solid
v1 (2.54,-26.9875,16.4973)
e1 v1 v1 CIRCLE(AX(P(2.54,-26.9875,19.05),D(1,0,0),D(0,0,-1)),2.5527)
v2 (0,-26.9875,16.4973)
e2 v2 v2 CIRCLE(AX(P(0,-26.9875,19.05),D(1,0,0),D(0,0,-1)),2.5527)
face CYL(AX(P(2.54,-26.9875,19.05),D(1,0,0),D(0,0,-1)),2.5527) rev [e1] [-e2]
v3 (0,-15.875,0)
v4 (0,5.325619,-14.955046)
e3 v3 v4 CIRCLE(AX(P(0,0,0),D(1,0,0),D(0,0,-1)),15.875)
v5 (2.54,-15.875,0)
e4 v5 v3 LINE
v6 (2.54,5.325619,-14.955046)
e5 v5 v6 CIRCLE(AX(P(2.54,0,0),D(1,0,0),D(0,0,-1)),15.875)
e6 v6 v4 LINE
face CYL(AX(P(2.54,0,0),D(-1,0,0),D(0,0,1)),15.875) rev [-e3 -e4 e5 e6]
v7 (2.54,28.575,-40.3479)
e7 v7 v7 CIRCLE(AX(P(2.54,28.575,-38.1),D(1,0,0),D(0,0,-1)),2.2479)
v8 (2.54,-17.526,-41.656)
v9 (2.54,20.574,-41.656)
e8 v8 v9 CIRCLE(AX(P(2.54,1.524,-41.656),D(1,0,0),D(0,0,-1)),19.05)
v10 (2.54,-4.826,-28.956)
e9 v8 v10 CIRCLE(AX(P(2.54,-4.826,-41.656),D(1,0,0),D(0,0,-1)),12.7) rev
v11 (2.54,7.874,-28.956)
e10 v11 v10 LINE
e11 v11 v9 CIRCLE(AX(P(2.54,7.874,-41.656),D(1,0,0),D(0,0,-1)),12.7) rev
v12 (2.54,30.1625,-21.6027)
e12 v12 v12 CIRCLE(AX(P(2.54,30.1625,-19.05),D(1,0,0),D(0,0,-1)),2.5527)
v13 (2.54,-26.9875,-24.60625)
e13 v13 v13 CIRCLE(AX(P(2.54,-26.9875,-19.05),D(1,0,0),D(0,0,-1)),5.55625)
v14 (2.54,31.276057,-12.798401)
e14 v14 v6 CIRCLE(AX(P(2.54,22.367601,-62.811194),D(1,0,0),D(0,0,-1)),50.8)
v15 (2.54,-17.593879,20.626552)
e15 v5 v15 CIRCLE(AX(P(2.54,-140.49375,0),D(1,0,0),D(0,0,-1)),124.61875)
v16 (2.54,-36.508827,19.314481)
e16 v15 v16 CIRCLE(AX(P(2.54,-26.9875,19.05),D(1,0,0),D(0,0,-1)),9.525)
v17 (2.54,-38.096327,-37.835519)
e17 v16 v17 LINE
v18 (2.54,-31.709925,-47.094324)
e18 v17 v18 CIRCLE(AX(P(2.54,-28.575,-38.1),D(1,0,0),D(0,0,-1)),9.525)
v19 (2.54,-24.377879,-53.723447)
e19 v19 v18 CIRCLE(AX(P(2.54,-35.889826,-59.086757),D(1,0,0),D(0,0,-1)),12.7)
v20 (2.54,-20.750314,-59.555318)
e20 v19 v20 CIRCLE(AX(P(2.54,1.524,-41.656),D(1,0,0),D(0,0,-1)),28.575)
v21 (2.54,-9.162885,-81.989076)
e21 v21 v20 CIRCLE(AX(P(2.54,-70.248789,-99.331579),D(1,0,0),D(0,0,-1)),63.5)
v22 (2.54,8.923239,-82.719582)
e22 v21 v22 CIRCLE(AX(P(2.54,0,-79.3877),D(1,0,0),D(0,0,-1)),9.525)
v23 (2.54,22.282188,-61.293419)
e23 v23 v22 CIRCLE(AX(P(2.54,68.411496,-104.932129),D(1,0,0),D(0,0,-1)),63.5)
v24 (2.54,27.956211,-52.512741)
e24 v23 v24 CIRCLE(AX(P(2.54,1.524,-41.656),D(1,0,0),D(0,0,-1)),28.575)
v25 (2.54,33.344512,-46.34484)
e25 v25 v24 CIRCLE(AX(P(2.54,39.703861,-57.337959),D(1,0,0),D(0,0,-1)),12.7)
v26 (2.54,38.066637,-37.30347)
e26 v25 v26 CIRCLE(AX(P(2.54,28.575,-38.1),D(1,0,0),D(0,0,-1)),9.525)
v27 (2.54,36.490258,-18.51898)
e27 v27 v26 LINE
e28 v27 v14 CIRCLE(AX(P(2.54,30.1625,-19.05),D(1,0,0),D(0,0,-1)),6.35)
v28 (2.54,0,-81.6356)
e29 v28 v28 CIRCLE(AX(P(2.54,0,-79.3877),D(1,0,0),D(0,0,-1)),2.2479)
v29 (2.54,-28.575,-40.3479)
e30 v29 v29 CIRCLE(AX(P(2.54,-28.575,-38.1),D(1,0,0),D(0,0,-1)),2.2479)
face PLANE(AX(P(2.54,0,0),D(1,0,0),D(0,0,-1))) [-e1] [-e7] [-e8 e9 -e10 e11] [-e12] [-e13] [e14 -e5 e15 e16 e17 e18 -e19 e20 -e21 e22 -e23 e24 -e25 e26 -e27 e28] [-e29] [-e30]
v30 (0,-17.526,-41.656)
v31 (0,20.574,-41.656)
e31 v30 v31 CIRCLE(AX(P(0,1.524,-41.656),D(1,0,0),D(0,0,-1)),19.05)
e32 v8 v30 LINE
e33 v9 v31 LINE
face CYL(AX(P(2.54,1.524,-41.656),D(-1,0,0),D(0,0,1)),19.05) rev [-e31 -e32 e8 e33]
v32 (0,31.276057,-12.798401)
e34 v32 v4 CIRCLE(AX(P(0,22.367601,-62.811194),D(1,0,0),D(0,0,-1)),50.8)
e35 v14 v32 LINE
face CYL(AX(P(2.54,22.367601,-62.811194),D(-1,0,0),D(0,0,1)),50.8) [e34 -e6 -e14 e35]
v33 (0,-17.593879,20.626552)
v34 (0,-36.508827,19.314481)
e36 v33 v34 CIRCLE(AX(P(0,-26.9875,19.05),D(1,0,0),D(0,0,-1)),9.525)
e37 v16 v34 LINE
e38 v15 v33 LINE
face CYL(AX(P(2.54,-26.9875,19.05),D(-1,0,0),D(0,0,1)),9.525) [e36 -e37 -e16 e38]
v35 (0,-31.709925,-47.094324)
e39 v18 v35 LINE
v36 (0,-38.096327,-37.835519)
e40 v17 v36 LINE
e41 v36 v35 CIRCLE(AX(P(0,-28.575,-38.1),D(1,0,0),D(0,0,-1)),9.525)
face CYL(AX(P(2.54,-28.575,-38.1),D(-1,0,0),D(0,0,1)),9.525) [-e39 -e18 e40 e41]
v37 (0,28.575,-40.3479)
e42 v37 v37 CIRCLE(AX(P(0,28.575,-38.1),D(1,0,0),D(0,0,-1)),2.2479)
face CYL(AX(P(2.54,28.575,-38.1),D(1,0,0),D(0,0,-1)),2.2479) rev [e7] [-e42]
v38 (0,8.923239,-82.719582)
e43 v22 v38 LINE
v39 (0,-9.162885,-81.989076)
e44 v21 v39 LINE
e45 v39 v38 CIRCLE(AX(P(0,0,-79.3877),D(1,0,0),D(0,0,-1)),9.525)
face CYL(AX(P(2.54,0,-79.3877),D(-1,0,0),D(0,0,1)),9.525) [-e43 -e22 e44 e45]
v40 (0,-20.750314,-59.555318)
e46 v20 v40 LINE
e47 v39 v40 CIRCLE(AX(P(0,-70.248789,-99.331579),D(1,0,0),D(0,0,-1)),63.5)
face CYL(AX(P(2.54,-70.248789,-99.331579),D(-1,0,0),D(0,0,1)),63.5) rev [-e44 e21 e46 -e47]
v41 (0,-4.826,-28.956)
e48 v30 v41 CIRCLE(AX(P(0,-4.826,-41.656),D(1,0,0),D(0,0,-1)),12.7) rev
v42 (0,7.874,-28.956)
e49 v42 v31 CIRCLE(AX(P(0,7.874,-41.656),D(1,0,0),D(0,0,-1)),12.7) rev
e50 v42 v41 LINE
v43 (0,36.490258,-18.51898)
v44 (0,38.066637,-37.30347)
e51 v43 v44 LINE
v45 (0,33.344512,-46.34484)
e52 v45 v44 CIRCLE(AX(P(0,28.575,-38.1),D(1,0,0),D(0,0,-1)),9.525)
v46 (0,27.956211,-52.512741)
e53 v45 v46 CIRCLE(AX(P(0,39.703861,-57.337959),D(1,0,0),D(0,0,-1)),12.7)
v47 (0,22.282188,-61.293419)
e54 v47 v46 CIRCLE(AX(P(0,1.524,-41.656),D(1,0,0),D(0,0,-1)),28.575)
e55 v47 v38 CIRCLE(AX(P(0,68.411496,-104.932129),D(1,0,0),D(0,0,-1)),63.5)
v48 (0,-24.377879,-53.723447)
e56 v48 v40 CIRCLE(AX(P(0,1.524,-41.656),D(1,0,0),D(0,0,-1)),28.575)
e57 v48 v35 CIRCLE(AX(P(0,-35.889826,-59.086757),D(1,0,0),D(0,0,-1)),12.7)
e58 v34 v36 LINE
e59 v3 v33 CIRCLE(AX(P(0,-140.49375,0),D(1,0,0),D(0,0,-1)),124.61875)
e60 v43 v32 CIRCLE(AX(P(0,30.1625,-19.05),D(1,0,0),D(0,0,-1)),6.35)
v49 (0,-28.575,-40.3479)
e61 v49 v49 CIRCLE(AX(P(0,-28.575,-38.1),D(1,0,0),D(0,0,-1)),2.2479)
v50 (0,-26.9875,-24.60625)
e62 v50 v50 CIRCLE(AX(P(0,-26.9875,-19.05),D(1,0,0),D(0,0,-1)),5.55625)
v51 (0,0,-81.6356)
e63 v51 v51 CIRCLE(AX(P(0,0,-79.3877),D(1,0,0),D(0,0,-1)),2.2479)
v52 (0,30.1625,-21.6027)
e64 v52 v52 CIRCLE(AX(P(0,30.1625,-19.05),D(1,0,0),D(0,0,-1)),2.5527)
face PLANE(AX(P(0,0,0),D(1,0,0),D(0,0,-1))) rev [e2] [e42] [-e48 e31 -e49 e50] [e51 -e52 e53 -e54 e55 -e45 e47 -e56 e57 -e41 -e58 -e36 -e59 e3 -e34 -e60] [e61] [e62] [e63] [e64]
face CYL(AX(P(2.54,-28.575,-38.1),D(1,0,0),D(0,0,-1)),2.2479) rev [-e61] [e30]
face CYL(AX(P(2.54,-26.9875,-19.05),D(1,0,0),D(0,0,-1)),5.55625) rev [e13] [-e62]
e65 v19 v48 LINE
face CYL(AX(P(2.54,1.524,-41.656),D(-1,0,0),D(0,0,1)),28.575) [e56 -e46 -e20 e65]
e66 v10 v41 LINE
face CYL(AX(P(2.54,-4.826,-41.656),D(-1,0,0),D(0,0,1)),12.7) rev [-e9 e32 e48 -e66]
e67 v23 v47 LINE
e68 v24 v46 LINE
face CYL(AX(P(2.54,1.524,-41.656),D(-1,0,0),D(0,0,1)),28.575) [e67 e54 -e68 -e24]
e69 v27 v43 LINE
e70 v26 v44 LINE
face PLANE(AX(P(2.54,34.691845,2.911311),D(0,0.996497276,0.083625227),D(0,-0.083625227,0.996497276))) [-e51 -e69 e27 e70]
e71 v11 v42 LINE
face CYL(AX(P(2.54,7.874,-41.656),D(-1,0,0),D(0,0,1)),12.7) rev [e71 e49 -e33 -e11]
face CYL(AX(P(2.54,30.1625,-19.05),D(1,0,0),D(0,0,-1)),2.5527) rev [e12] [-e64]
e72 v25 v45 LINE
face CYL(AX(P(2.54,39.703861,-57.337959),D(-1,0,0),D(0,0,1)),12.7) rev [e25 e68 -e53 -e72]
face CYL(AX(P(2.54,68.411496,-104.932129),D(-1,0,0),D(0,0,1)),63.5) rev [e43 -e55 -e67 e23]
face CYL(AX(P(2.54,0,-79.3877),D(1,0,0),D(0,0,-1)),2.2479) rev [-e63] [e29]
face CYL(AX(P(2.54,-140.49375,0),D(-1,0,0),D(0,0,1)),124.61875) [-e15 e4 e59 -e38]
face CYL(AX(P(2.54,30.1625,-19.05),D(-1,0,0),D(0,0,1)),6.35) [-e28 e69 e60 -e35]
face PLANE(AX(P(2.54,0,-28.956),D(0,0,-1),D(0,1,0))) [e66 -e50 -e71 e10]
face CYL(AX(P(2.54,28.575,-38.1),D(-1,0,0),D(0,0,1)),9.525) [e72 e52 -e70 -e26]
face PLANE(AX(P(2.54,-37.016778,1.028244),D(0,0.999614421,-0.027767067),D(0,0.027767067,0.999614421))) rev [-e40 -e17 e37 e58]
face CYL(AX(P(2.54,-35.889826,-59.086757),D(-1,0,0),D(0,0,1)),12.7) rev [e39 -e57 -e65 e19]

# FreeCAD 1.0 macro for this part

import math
import FreeCAD as App
import Part
import Sketcher
Q = App.Units.Quantity

doc = App.newDocument("Part")
body = doc.addObject("PartDesign::Body", "Body")

# Sketch on YZ plane
sketch1 = doc.addObject("Sketcher::SketchObject", "Sketch")
body.addObject(sketch1)
sketch1.AttachmentSupport = (doc.YZ_Plane, [""])
sketch1.MapMode = "FlatFace"
sketch1.addGeometry(Part.LineSegment(App.Vector(-37, 19, 0), App.Vector(-38, -38, 0)), False)
sketch1.addGeometry(Part.ArcOfCircle(Part.Circle(App.Vector(-29, -38, 0), App.Vector(0, 0, 1), 10), math.radians(178), math.radians(251)), False)
sketch1.addGeometry(Part.ArcOfCircle(Part.Circle(App.Vector(-36, -59, 0), App.Vector(0, 0, 1), 13), math.radians(25), math.radians(71)), False)
sketch1.addGeometry(Part.ArcOfCircle(Part.Circle(App.Vector(2, -42, 0), App.Vector(0, 0, 1), 29), math.radians(-155.02), math.radians(-141.22)), False)
sketch1.addGeometry(Part.ArcOfCircle(Part.Circle(App.Vector(-70, -99, 0), App.Vector(0, 0, 1), 63), math.radians(16), math.radians(39)), False)
sketch1.addGeometry(Part.ArcOfCircle(Part.Circle(App.Vector(0, -79, 0), App.Vector(0, 0, 1), 10), math.radians(-164), math.radians(-20)), False)
sketch1.addGeometry(Part.ArcOfCircle(Part.Circle(App.Vector(68, -105, 0), App.Vector(0, 0, 1), 63), math.radians(137), math.radians(160)), False)
sketch1.addGeometry(Part.ArcOfCircle(Part.Circle(App.Vector(2, -42, 0), App.Vector(0, 0, 1), 29), math.radians(-43), math.radians(-22)), False)
sketch1.addGeometry(Part.ArcOfCircle(Part.Circle(App.Vector(40, -57, 0), App.Vector(0, 0, 1), 13), math.radians(120), math.radians(158)), False)
sketch1.addGeometry(Part.ArcOfCircle(Part.Circle(App.Vector(29, -38, 0), App.Vector(0, 0, 1), 10), math.radians(-60), math.radians(5)), False)
sketch1.addGeometry(Part.LineSegment(App.Vector(38, -37, 0), App.Vector(36, -19, 0)), False)
sketch1.addGeometry(Part.ArcOfCircle(Part.Circle(App.Vector(30, -19, 0), App.Vector(0, 0, 1), 6), math.radians(5), math.radians(80)), False)
sketch1.addGeometry(Part.ArcOfCircle(Part.Circle(App.Vector(22, -63, 0), App.Vector(0, 0, 1), 51), math.radians(80), math.radians(110)), False)
sketch1.addGeometry(Part.ArcOfCircle(Part.Circle(App.Vector(0, 0, 0), App.Vector(0, 0, 1), 16), math.radians(180), math.radians(290)), False)
sketch1.addGeometry(Part.ArcOfCircle(Part.Circle(App.Vector(-140, 0, 0), App.Vector(0, 0, 1), 125), math.radians(0), math.radians(9.53)), False)
sketch1.addGeometry(Part.ArcOfCircle(Part.Circle(App.Vector(-27, 19, 0), App.Vector(0, 0, 1), 10), math.radians(10), math.radians(178)), False)
sketch1.addGeometry(Part.LineSegment(App.Vector(-5, -29, 0), App.Vector(8, -29, 0)), False)
sketch1.addGeometry(Part.ArcOfCircle(Part.Circle(App.Vector(8, -42, 0), App.Vector(0, 0, 1), 13), math.radians(0), math.radians(90)), False)
sketch1.addGeometry(Part.ArcOfCircle(Part.Circle(App.Vector(2, -42, 0), App.Vector(0, 0, 1), 19), math.radians(180), math.radians(360)), False)
sketch1.addGeometry(Part.ArcOfCircle(Part.Circle(App.Vector(-5, -42, 0), App.Vector(0, 0, 1), 13), math.radians(90), math.radians(180)), False)
sketch1.addConstraint(Sketcher.Constraint("Tangent", 0, 2, 1, 1))
sketch1.addConstraint(Sketcher.Constraint("Tangent", 1, 2, 2, 2))
sketch1.addConstraint(Sketcher.Constraint("Tangent", 2, 1, 3, 1))
sketch1.addConstraint(Sketcher.Constraint("Tangent", 3, 2, 4, 2))
sketch1.addConstraint(Sketcher.Constraint("Tangent", 4, 1, 5, 1))
sketch1.addConstraint(Sketcher.Constraint("Tangent", 5, 2, 6, 2))
sketch1.addConstraint(Sketcher.Constraint("Tangent", 6, 1, 7, 1))
sketch1.addConstraint(Sketcher.Constraint("Tangent", 7, 2, 8, 2))
sketch1.addConstraint(Sketcher.Constraint("Tangent", 8, 1, 9, 1))
sketch1.addConstraint(Sketcher.Constraint("Tangent", 9, 2, 10, 1))
sketch1.addConstraint(Sketcher.Constraint("Tangent", 10, 2, 11, 1))
sketch1.addConstraint(Sketcher.Constraint("Tangent", 11, 2, 12, 1))
sketch1.addConstraint(Sketcher.Constraint("Tangent", 12, 2, 13, 2))
sketch1.addConstraint(Sketcher.Constraint("Tangent", 13, 1, 14, 1))
sketch1.addConstraint(Sketcher.Constraint("Tangent", 14, 2, 15, 1))
sketch1.addConstraint(Sketcher.Constraint("Tangent", 15, 2, 0, 1))
sketch1.addConstraint(Sketcher.Constraint("Tangent", 16, 2, 17, 2))
sketch1.addConstraint(Sketcher.Constraint("Tangent", 17, 1, 18, 2))
sketch1.addConstraint(Sketcher.Constraint("Tangent", 18, 1, 19, 2))
sketch1.addConstraint(Sketcher.Constraint("Tangent", 19, 1, 16, 1))
sketch1.addConstraint(Sketcher.Constraint("Horizontal", 16))
sketch1.addConstraint(Sketcher.Constraint("Coincident", 13, 3, -1, 1))
sketch1.addConstraint(Sketcher.Constraint("Coincident", 7, 3, 3, 3))
sketch1.addConstraint(Sketcher.Constraint("Coincident", 18, 3, 3, 3))
sketch1.addConstraint(Sketcher.Constraint("Equal", 1, 5))
sketch1.addConstraint(Sketcher.Constraint("Equal", 4, 6))
sketch1.addConstraint(Sketcher.Constraint("Equal", 3, 7))
sketch1.addConstraint(Sketcher.Constraint("Equal", 2, 8))
sketch1.addConstraint(Sketcher.Constraint("Equal", 5, 9))
sketch1.addConstraint(Sketcher.Constraint("Equal", 9, 15))
sketch1.addConstraint(Sketcher.Constraint("Equal", 8, 17))
sketch1.addConstraint(Sketcher.Constraint("Equal", 17, 19))
sketch1.addConstraint(Sketcher.Constraint("Symmetric", 1, 3, 9, 3, -2))
sketch1.addConstraint(Sketcher.Constraint("PointOnObject", 5, 3, -2))
sketch1.addConstraint(Sketcher.Constraint("PointOnObject", 14, 3, -1))
sketch1.addConstraint(Sketcher.Constraint("Horizontal", 7, 3, 17, 3))
sketch1.addConstraint(Sketcher.Constraint("Radius", 12, Q("2 in")))
sketch1.addConstraint(Sketcher.Constraint("Radius", 2, Q("0.5 in")))
sketch1.addConstraint(Sketcher.Constraint("Radius", 4, Q("2.5 in")))
sketch1.addConstraint(Sketcher.Constraint("Radius", 11, Q("0.25 in")))
sketch1.addConstraint(Sketcher.Constraint("Radius", 18, Q("0.75 in")))
sketch1.addConstraint(Sketcher.Constraint("Radius", 1, Q("0.375 in")))
sketch1.addConstraint(Sketcher.Constraint("Radius", 3, Q("1.125 in")))
sketch1.addConstraint(Sketcher.Constraint("Radius", 13, Q("0.625 in")))
sketch1.addConstraint(Sketcher.Constraint("Radius", 14, Q("4.90625 in")))
sketch1.addConstraint(Sketcher.Constraint("DistanceY", 1, 3, -1, 1, Q("1.5 in")))
sketch1.addConstraint(Sketcher.Constraint("DistanceY", 11, 3, 15, 3, Q("1.5 in")))
sketch1.addConstraint(Sketcher.Constraint("DistanceX", 1, 3, 13, 1, Q("0.5 in")))
sketch1.addConstraint(Sketcher.Constraint("DistanceX", -1, 1, 3, 3, Q("0.06 in")))
sketch1.addConstraint(Sketcher.Constraint("DistanceY", 3, 3, -1, 1, Q("1.64 in")))
sketch1.addConstraint(Sketcher.Constraint("DistanceY", 11, 3, -1, 1, Q("0.75 in")))
sketch1.addConstraint(Sketcher.Constraint("DistanceX", 15, 3, 11, 3, Q("2.25 in")))
sketch1.addConstraint(Sketcher.Constraint("DistanceY", 5, 3, -1, 1, Q("3.1255 in")))
pad1 = doc.addObject("PartDesign::Pad", "Pad")
body.addObject(pad1)
pad1.Profile = sketch1
pad1.Length = Q("0.1 in")

# Sketch on YZ plane
sketch2 = doc.addObject("Sketcher::SketchObject", "Sketch001")
body.addObject(sketch2)
sketch2.AttachmentSupport = (doc.YZ_Plane, [""])
sketch2.MapMode = "FlatFace"
sketch2.AttachmentOffset = App.Placement(App.Vector(0, 0, 0.1 * 25.4), App.Rotation())
sketch2.addGeometry(Part.Circle(App.Vector(-27, -19, 0), App.Vector(0, 0, 1), 6), False)
sketch2.addConstraint(Sketcher.Constraint("Diameter", 0, Q("0.4375 in")))
sketch2.addConstraint(Sketcher.Constraint("DistanceY", 0, 3, -1, 1, Q("0.75 in")))
sketch2.addConstraint(Sketcher.Constraint("DistanceX", 0, 3, -1, 1, Q("1.0625 in")))
doc.recompute()
hole = doc.addObject("PartDesign::Hole", "Hole")
body.addObject(hole)
hole.Profile = sketch2
hole.ThreadType = "None"
hole.Diameter = Q("0.4375 in")
hole.DepthType = "ThroughAll"

# Sketch on YZ plane
sketch3 = doc.addObject("Sketcher::SketchObject", "Sketch002")
body.addObject(sketch3)
sketch3.AttachmentSupport = (doc.YZ_Plane, [""])
sketch3.MapMode = "FlatFace"
sketch3.AttachmentOffset = App.Placement(App.Vector(0, 0, 0.1 * 25.4), App.Rotation())
sketch3.addGeometry(Part.Circle(App.Vector(-28.6, -38.1, 0), App.Vector(0, 0, 1), 2.2), False)
sketch3.addGeometry(Part.Circle(App.Vector(0, -79.4, 0), App.Vector(0, 0, 1), 2.2), False)
sketch3.addGeometry(Part.Circle(App.Vector(28.6, -38.1, 0), App.Vector(0, 0, 1), 2.2), False)
sketch3.addConstraint(Sketcher.Constraint("Equal", 0, 1))
sketch3.addConstraint(Sketcher.Constraint("Equal", 1, 2))
sketch3.addConstraint(Sketcher.Constraint("Symmetric", 0, 3, 2, 3, -2))
sketch3.addConstraint(Sketcher.Constraint("PointOnObject", 1, 3, -2))
sketch3.addConstraint(Sketcher.Constraint("Diameter", 0, Q("0.177 in")))
sketch3.addConstraint(Sketcher.Constraint("DistanceY", 0, 3, -1, 1, Q("1.5 in")))
sketch3.addConstraint(Sketcher.Constraint("DistanceX", 0, 3, 2, 3, Q("2.25 in")))
sketch3.addConstraint(Sketcher.Constraint("DistanceY", 1, 3, -1, 1, Q("3.1255 in")))
doc.recompute()
hole2 = doc.addObject("PartDesign::Hole", "Hole001")
body.addObject(hole2)
hole2.Profile = sketch3
hole2.ThreadType = "None"
hole2.Diameter = Q("0.177 in")
hole2.DepthType = "ThroughAll"

# Sketch on YZ plane
sketch4 = doc.addObject("Sketcher::SketchObject", "Sketch003")
body.addObject(sketch4)
sketch4.AttachmentSupport = (doc.YZ_Plane, [""])
sketch4.MapMode = "FlatFace"
sketch4.AttachmentOffset = App.Placement(App.Vector(0, 0, 0.1 * 25.4), App.Rotation())
sketch4.addGeometry(Part.Circle(App.Vector(-27, 19.1, 0), App.Vector(0, 0, 1), 2.6), False)
sketch4.addGeometry(Part.Circle(App.Vector(30.2, -19.1, 0), App.Vector(0, 0, 1), 2.6), False)
sketch4.addConstraint(Sketcher.Constraint("Equal", 0, 1))
sketch4.addConstraint(Sketcher.Constraint("Diameter", 0, Q("0.201 in")))
sketch4.addConstraint(Sketcher.Constraint("DistanceY", 1, 3, 0, 3, Q("1.5 in")))
sketch4.addConstraint(Sketcher.Constraint("DistanceY", -1, 1, 0, 3, Q("0.75 in")))
sketch4.addConstraint(Sketcher.Constraint("DistanceX", 0, 3, 1, 3, Q("2.25 in")))
sketch4.addConstraint(Sketcher.Constraint("DistanceX", 0, 3, -1, 1, Q("1.0625 in")))
doc.recompute()
hole3 = doc.addObject("PartDesign::Hole", "Hole002")
body.addObject(hole3)
hole3.Profile = sketch4
hole3.ThreadType = "None"
hole3.Diameter = Q("0.201 in")
hole3.DepthType = "ThroughAll"

doc.recompute()
